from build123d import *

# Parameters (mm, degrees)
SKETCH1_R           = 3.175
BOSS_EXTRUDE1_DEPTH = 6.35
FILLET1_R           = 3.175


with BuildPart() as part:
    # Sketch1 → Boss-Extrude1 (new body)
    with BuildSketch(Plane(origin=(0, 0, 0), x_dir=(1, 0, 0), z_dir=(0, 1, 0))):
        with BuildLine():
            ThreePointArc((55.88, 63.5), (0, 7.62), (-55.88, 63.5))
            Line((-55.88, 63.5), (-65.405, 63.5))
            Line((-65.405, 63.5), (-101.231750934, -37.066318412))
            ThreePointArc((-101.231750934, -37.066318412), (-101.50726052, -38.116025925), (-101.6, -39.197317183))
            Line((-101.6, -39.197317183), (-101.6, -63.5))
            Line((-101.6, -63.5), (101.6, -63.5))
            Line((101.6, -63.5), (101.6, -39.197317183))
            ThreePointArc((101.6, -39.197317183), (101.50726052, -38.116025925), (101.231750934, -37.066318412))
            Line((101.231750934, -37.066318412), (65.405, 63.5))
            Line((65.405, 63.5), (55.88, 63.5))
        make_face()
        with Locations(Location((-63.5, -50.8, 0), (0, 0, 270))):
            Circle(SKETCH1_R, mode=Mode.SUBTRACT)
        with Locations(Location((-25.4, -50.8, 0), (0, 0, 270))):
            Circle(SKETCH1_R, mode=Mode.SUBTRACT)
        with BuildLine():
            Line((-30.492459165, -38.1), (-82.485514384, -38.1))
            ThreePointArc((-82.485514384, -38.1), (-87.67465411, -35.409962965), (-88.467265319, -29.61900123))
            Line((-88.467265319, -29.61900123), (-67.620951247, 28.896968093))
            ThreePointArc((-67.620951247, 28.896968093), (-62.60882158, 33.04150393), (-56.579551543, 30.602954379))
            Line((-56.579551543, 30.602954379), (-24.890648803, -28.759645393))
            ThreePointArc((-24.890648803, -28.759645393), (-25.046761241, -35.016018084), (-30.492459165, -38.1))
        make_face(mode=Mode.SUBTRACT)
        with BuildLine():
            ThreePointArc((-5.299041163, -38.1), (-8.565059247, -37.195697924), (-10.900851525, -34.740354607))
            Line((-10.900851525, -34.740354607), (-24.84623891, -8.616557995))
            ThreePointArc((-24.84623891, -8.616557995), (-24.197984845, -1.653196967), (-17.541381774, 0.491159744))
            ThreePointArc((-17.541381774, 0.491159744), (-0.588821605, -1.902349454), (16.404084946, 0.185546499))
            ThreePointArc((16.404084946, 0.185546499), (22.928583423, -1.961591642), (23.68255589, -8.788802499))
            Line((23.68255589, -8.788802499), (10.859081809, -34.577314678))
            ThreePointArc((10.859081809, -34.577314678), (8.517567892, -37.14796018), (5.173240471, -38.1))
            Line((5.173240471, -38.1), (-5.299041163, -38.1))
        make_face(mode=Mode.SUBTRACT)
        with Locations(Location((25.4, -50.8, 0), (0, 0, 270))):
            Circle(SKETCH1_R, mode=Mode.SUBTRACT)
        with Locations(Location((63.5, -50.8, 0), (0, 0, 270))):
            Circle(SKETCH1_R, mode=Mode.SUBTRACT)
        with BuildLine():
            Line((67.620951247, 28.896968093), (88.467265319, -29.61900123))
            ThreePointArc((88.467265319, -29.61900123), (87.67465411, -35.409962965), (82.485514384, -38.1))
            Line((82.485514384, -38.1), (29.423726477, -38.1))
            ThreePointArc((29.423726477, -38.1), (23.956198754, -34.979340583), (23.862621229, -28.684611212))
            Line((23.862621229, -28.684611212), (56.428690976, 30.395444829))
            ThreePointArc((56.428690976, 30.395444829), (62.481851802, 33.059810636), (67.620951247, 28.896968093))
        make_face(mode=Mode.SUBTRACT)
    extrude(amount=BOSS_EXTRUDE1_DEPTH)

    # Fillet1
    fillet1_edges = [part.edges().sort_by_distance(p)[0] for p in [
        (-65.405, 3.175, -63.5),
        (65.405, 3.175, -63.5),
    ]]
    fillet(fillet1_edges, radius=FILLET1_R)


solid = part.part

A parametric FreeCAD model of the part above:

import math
import FreeCAD as App
import Part
import Sketcher

V = App.Vector
Q = App.Units.Quantity


def edges_at(feature, points):
    """Names of the edges that pass closest to the given points."""
    edges = feature.Shape.Edges
    near = lambda p: min(range(len(edges)), key=lambda i: edges[i].distToShape(Part.Vertex(*p))[0])
    return sorted({f"Edge{near(p) + 1}" for p in points})

doc = App.newDocument("Part")
body = doc.addObject("PartDesign::Body", "Body")

# Sketch on XZ plane
sketch1 = body.newObject("Sketcher::SketchObject", "Sketch")
sketch1.AttachmentSupport = (doc.getObject("XZ_Plane"), [""])
sketch1.MapMode = "FlatFace"
sketch1.addGeometry([
    Part.ArcOfCircle(Part.Circle(V(0, -63.5, 0), V(0, 0, 1), 55.9), math.radians(0), math.radians(180)),  # 0
    Part.LineSegment(V(-55.9, -63.5, 0), V(-65.4, -63.5, 0)),  # 1
    Part.LineSegment(V(-65.4, -63.5, 0), V(-101.2, 37.1, 0)),  # 2
    Part.ArcOfCircle(Part.Circle(V(-95.3, 39.2, 0), V(0, 0, 1), 6.3), math.radians(180), math.radians(199.61)),  # 3
    Part.LineSegment(V(-101.6, 39.2, 0), V(-101.6, 63.5, 0)),  # 4
    Part.LineSegment(V(-101.6, 63.5, 0), V(101.6, 63.5, 0)),  # 5
    Part.LineSegment(V(101.6, 63.5, 0), V(101.6, 39.2, 0)),  # 6
    Part.ArcOfCircle(Part.Circle(V(95.3, 39.2, 0), V(0, 0, 1), 6.3), math.radians(-19.61), math.radians(0)),  # 7
    Part.LineSegment(V(101.2, 37.1, 0), V(65.4, -63.5, 0)),  # 8
    Part.LineSegment(V(65.4, -63.5, 0), V(55.9, -63.5, 0)),  # 9
    Part.Circle(V(-63.5, 50.8, 0), V(0, 0, 1), 3.2),  # 10
    Part.Circle(V(-25.4, 50.8, 0), V(0, 0, 1), 3.2),  # 11
    Part.LineSegment(V(5.2, 38.1, 0), V(-5.3, 38.1, 0)),  # 12
    Part.ArcOfCircle(Part.Circle(V(-5.3, 31.8, 0), V(0, 0, 1), 6.3), math.radians(90), math.radians(152)),  # 13
    Part.LineSegment(V(-10.9, 34.7, 0), V(-24.8, 8.6, 0)),  # 14
    Part.ArcOfCircle(Part.Circle(V(-19.2, 5.6, 0), V(0, 0, 1), 6.3), math.radians(152), math.radians(286)),  # 15
    Part.ArcOfCircle(Part.Circle(V(0, -63.5, 0), V(0, 0, 1), 65.4), math.radians(75), math.radians(106)),  # 16
    Part.ArcOfCircle(Part.Circle(V(18, 6, 0), V(0, 0, 1), 6.3), math.radians(-105), math.radians(26)),  # 17
    Part.LineSegment(V(23.7, 8.8, 0), V(10.9, 34.6, 0)),  # 18
    Part.ArcOfCircle(Part.Circle(V(5.2, 31.7, 0), V(0, 0, 1), 6.4), math.radians(26), math.radians(90)),  # 19
    Part.Circle(V(25.4, 50.8, 0), V(0, 0, 1), 3.2),  # 20
    Part.Circle(V(63.5, 50.8, 0), V(0, 0, 1), 3.2),  # 21
    Part.ArcOfCircle(Part.Circle(V(-30.5, 31.8, 0), V(0, 0, 1), 6.3), math.radians(-28), math.radians(90)),  # 22
    Part.LineSegment(V(-30.5, 38.1, 0), V(-82.5, 38.1, 0)),  # 23
    Part.ArcOfCircle(Part.Circle(V(-82.5, 31.8, 0), V(0, 0, 1), 6.3), math.radians(90), math.radians(200)),  # 24
    Part.LineSegment(V(-88.5, 29.6, 0), V(-67.6, -28.9, 0)),  # 25
    Part.ArcOfCircle(Part.Circle(V(-61.6, -26.8, 0), V(0, 0, 1), 6.3), math.radians(-160), math.radians(-37)),  # 26
    Part.LineSegment(V(-56.6, -30.6, 0), V(-24.9, 28.8, 0)),  # 27
    Part.ArcOfCircle(Part.Circle(V(61.6, -26.8, 0), V(0, 0, 1), 6.3), math.radians(-145), math.radians(-20)),  # 28
    Part.LineSegment(V(67.6, -28.9, 0), V(88.5, 29.6, 0)),  # 29
    Part.ArcOfCircle(Part.Circle(V(82.5, 31.8, 0), V(0, 0, 1), 6.3), math.radians(-20), math.radians(90)),  # 30
    Part.LineSegment(V(82.5, 38.1, 0), V(29.4, 38.1, 0)),  # 31
    Part.ArcOfCircle(Part.Circle(V(29.4, 31.8, 0), V(0, 0, 1), 6.3), math.radians(90), math.radians(209)),  # 32
    Part.LineSegment(V(23.9, 28.7, 0), V(56.4, -30.4, 0)),  # 33
], False)
sketch1.addConstraint([
    Sketcher.Constraint("Coincident", 0, 2, 1, 1),
    Sketcher.Constraint("Coincident", 1, 2, 2, 1),
    Sketcher.Constraint("Tangent", 2, 2, 3, 2),
    Sketcher.Constraint("Tangent", 3, 1, 4, 1),
    Sketcher.Constraint("Coincident", 4, 2, 5, 1),
    Sketcher.Constraint("Coincident", 5, 2, 6, 1),
    Sketcher.Constraint("Tangent", 6, 2, 7, 2),
    Sketcher.Constraint("Tangent", 7, 1, 8, 1),
    Sketcher.Constraint("Coincident", 8, 2, 9, 1),
    Sketcher.Constraint("Coincident", 9, 2, 0, 1),
    Sketcher.Constraint("Tangent", 12, 2, 13, 1),
    Sketcher.Constraint("Tangent", 13, 2, 14, 1),
    Sketcher.Constraint("Tangent", 14, 2, 15, 1),
    Sketcher.Constraint("Tangent", 15, 2, 16, 2),
    Sketcher.Constraint("Tangent", 16, 1, 17, 1),
    Sketcher.Constraint("Tangent", 17, 2, 18, 1),
    Sketcher.Constraint("Tangent", 18, 2, 19, 1),
    Sketcher.Constraint("Tangent", 19, 2, 12, 1),
    Sketcher.Constraint("Tangent", 22, 2, 23, 1),
    Sketcher.Constraint("Tangent", 23, 2, 24, 1),
    Sketcher.Constraint("Tangent", 24, 2, 25, 1),
    Sketcher.Constraint("Tangent", 25, 2, 26, 1),
    Sketcher.Constraint("Coincident", 26, 2, 27, 1),
    Sketcher.Constraint("Tangent", 27, 2, 22, 1),
    Sketcher.Constraint("Tangent", 28, 2, 29, 1),
    Sketcher.Constraint("Tangent", 29, 2, 30, 1),
    Sketcher.Constraint("Tangent", 30, 2, 31, 1),
    Sketcher.Constraint("Tangent", 31, 2, 32, 1),
    Sketcher.Constraint("Tangent", 32, 2, 33, 1),
    Sketcher.Constraint("Coincident", 33, 2, 28, 1),
    Sketcher.Constraint("Horizontal", 1),
    Sketcher.Constraint("Vertical", 4),
    Sketcher.Constraint("Horizontal", 5),
    Sketcher.Constraint("Vertical", 6),
    Sketcher.Constraint("Horizontal", 9),
    Sketcher.Constraint("Horizontal", 12),
    Sketcher.Constraint("Horizontal", 23),
    Sketcher.Constraint("Horizontal", 31),
    Sketcher.Constraint("Coincident", 16, 3, 0, 3),
    Sketcher.Constraint("Equal", 3, 7),
    Sketcher.Constraint("Equal", 10, 11),
    Sketcher.Constraint("Equal", 7, 13),
    Sketcher.Constraint("Equal", 13, 15),
    Sketcher.Constraint("Equal", 15, 17),
    Sketcher.Constraint("Equal", 17, 19),
    Sketcher.Constraint("Equal", 11, 20),
    Sketcher.Constraint("Equal", 20, 21),
    Sketcher.Constraint("Equal", 19, 22),
    Sketcher.Constraint("Equal", 22, 24),
    Sketcher.Constraint("Equal", 24, 26),
    Sketcher.Constraint("Equal", 26, 28),
    Sketcher.Constraint("Equal", 28, 30),
    Sketcher.Constraint("Equal", 30, 32),
    Sketcher.Constraint("Symmetric", 3, 3, 7, 3, -2),
    Sketcher.Constraint("Symmetric", 11, 3, 20, 3, -2),
    Sketcher.Constraint("Symmetric", 10, 3, 21, 3, -2),
    Sketcher.Constraint("Symmetric", 26, 3, 28, 3, -2),
    Sketcher.Constraint("Symmetric", 24, 3, 30, 3, -2),
    Sketcher.Constraint("Symmetric", 1, 2, 8, 2, -2),
    Sketcher.Constraint("PointOnObject", 0, 3, -2),
    Sketcher.Constraint("Parallel", 2, 25),
    Sketcher.Constraint("Parallel", 14, 27),
    Sketcher.Constraint("Horizontal", 10, 3, 11, 3),
    Sketcher.Constraint("Horizontal", 19, 3, 22, 3),
    Sketcher.Constraint("Horizontal", 16, 3, 0, 2),
    Sketcher.Constraint("Radius", 0, Q("2.2 in")),
    Sketcher.Constraint("Diameter", 10, Q("0.25 in")),
    Sketcher.Constraint("DistanceX", 5, 1, 5, 2, Q("8 in")),
    Sketcher.Constraint("Radius", 3, Q("0.25 in")),
    Sketcher.Constraint("DistanceY", -1, 1, 10, 3, Q("2 in")),
    Sketcher.Constraint("DistanceX", 11, 3, -1, 1, Q("1 in")),
    Sketcher.Constraint("Radius", 16, Q("2.575 in")),
    Sketcher.Constraint("DistanceY", 0, 3, -1, 1, Q("2.5 in")),
    Sketcher.Constraint("DistanceX", 10, 3, -1, 1, Q("2.5 in")),
    Sketcher.Constraint("DistanceY", -1, 1, 4, 2, Q("2.5 in")),
    Sketcher.Constraint("DistanceY", -1, 1, 12, 2, Q("1.5 in")),
    Sketcher.Constraint("DistanceX", 1, 2, 1, 1, Q("0.375 in")),
    Sketcher.Constraint("DistanceY", 15, 3, 17, 3, Q("0.0132002 in")),
    Sketcher.Constraint("DistanceX", 12, 2, 12, 1, 10.472282),
    Sketcher.Constraint("DistanceX", 26, 3, -1, 1, 61.6392),
    Sketcher.Constraint("DistanceY", -1, 1, 29, 2, 29.619001),
    Sketcher.Constraint("DistanceX", 22, 3, 19, 3, 35.6657),
    Sketcher.Constraint("DistanceX", 17, 3, 30, 3, 64.4888),
    Sketcher.Constraint("DistanceX", 25, 2, 26, 2, 11.0414),
    Sketcher.Constraint("DistanceY", 33, 2, 16, 1, 30.209898),
    Sketcher.Constraint("Distance", 18, 28.800848),
    Sketcher.Constraint("DistanceX", 31, 2, 31, 1, 53.061788),
])
pad1 = body.newObject("PartDesign::Pad", "Pad")
pad1.Profile = sketch1
pad1.Length = Q("0.25 in")
pad1.Reversed = True
doc.recompute()

fillet = body.newObject("PartDesign::Fillet", "Fillet")
fillet.Base = (pad1, edges_at(pad1, [(-65.405, 3.175, -63.5), (65.405, 3.175, -63.5)]))
fillet.Radius = Q("0.125 in")

doc.recompute()
